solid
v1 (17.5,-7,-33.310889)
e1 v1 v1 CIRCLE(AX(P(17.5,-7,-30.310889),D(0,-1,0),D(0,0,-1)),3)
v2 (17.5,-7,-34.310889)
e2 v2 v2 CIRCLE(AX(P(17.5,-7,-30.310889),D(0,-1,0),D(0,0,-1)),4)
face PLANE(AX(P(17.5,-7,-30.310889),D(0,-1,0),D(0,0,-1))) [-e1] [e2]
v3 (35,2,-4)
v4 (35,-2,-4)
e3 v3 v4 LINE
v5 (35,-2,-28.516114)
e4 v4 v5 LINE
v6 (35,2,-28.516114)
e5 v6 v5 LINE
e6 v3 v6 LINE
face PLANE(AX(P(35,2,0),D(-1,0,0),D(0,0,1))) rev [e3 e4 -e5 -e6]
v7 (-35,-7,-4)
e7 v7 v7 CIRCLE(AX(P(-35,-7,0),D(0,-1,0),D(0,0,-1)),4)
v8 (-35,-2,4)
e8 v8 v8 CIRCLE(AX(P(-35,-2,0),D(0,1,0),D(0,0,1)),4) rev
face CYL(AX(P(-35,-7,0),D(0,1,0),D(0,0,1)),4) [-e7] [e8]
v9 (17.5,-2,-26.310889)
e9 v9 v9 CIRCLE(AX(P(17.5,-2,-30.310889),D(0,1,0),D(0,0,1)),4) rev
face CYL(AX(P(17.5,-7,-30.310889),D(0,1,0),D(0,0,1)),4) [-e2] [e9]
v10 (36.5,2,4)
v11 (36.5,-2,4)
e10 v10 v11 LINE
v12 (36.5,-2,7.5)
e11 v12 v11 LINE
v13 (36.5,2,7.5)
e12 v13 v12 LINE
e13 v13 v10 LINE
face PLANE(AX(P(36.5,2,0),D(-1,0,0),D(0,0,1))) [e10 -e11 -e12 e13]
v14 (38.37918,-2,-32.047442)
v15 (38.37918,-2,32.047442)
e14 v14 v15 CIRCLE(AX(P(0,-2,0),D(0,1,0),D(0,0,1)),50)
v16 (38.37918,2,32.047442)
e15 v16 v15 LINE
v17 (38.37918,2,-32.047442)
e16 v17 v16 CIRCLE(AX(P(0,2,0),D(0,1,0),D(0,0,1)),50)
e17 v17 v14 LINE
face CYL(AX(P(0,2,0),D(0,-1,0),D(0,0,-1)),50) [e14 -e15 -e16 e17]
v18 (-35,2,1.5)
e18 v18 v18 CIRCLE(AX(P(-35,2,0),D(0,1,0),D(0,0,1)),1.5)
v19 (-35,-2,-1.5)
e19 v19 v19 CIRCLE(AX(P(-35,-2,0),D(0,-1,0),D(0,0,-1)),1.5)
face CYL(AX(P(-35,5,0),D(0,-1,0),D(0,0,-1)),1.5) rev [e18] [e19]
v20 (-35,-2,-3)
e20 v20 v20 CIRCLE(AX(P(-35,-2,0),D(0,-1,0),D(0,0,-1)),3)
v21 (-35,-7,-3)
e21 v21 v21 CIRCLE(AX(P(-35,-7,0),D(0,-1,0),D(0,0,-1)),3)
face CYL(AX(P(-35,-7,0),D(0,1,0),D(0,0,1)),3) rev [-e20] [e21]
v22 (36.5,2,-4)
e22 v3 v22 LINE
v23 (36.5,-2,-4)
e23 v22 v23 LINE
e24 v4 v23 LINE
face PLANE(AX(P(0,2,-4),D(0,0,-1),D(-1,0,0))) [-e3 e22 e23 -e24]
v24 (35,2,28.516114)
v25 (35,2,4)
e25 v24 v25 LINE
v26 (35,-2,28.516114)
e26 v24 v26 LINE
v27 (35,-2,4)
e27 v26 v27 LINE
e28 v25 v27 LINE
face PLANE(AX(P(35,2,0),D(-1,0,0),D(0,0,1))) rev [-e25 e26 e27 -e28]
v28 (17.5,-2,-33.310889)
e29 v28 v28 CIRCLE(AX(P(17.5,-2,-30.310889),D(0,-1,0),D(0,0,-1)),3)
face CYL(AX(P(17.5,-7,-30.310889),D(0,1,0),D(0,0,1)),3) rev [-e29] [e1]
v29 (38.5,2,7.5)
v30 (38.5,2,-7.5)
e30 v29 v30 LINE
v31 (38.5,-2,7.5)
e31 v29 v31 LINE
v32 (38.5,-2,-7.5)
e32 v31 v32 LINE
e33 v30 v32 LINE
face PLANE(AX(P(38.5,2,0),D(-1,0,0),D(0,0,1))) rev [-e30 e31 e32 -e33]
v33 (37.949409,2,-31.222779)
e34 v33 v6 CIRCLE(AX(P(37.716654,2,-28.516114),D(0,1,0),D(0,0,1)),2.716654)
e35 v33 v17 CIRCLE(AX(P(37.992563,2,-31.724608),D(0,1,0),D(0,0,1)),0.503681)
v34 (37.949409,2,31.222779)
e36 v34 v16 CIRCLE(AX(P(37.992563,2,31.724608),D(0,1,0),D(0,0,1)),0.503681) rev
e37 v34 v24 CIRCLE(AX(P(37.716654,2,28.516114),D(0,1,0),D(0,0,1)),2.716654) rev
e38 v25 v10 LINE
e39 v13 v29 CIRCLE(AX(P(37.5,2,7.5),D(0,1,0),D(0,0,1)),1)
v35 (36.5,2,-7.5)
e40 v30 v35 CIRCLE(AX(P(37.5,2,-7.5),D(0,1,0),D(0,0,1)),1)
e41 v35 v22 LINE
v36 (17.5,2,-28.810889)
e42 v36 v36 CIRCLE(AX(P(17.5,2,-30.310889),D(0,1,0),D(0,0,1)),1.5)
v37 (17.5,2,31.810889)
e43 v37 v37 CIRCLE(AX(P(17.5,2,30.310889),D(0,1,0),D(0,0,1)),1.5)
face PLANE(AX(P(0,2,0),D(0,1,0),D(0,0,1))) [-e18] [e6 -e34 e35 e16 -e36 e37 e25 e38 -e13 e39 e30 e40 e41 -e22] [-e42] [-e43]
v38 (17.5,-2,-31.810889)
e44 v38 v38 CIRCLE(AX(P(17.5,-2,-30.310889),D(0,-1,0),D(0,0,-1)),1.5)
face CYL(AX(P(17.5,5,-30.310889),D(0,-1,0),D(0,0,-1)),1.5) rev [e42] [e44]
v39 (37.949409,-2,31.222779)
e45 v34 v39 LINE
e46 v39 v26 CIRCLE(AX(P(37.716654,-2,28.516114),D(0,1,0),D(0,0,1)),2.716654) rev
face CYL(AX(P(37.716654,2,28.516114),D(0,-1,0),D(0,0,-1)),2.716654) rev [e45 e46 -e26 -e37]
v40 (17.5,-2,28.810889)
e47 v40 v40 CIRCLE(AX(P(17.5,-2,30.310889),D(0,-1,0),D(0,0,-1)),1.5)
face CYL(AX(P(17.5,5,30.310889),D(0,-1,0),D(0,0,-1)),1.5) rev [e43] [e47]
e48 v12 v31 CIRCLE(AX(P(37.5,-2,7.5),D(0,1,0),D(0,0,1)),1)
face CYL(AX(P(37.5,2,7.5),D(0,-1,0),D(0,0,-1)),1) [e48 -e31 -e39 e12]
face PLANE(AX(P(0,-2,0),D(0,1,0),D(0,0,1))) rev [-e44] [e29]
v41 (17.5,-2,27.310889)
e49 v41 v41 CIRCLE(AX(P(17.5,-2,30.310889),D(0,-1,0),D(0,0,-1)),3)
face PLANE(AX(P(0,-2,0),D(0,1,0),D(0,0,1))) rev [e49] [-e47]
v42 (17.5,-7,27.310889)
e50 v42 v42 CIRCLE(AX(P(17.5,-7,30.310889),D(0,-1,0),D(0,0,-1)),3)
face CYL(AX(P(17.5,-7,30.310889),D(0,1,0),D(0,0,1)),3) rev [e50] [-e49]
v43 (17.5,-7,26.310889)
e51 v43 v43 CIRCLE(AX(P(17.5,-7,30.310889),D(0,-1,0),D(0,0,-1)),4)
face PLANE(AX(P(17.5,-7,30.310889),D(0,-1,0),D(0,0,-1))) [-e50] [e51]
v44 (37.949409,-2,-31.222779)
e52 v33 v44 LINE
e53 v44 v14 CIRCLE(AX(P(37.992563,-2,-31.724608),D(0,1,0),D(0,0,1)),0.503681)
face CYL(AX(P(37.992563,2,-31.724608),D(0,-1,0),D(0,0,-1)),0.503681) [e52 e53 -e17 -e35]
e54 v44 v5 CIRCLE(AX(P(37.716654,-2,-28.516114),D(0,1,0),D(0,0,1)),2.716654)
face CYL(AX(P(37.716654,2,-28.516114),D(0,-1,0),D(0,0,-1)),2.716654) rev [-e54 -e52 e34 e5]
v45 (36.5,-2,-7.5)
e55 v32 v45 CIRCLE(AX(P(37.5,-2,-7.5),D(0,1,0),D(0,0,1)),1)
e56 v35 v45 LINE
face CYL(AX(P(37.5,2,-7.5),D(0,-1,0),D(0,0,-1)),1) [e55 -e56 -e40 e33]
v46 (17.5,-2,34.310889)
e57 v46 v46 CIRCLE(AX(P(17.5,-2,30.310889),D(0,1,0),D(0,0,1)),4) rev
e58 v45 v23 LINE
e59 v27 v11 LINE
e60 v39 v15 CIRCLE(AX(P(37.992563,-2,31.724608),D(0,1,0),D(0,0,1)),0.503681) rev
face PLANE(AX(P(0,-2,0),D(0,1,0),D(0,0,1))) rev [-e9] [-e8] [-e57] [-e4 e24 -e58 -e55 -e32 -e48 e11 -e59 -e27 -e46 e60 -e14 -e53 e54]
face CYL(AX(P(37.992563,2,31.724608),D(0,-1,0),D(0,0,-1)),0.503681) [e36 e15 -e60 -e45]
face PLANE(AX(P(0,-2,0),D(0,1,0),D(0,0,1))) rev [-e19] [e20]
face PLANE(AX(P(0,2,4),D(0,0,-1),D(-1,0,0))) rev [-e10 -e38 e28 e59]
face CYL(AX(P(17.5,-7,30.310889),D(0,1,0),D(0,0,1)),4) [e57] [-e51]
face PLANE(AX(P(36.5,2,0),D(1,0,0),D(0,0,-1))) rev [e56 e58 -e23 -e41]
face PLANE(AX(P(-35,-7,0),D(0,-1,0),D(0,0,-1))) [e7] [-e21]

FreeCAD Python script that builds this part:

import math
import FreeCAD as App
import Part
import Sketcher

V = App.Vector
Q = App.Units.Quantity

doc = App.newDocument("Part")
body = doc.addObject("PartDesign::Body", "Body")

sketch1 = body.newObject("Sketcher::SketchObject", "Sketch")
sketch1.AttachmentSupport = (doc.getObject("XZ_Plane"), [""])
sketch1.MapMode = "FlatFace"
sketch1.addGeometry(Part.LineSegment(V(35, 28.516114, 0), V(35, 4, 0)), False)
sketch1.addGeometry(Part.LineSegment(V(35, 4, 0), V(36.5, 4, 0)), False)
sketch1.addGeometry(Part.LineSegment(V(36.5, 4, 0), V(36.5, 7.5, 0)), False)
sketch1.addGeometry(Part.ArcOfCircle(Part.Circle(V(37.5, 7.5, 0), V(0, 0, 1), 1), math.radians(0), math.radians(180)), False)
sketch1.addGeometry(Part.LineSegment(V(38.5, 7.5, 0), V(38.5, -7.5, 0)), False)
sketch1.addGeometry(Part.ArcOfCircle(Part.Circle(V(37.5, -7.5, 0), V(0, 0, 1), 1), math.radians(180), math.radians(360)), False)
sketch1.addGeometry(Part.LineSegment(V(36.5, -7.5, 0), V(36.5, -4, 0)), False)
sketch1.addGeometry(Part.LineSegment(V(36.5, -4, 0), V(35, -4, 0)), False)
sketch1.addGeometry(Part.LineSegment(V(35, -4, 0), V(35, -28.516114, 0)), False)
sketch1.addGeometry(Part.ArcOfCircle(Part.Circle(V(37.716654, -28.516114, 0), V(0, 0, 1), 2.716654), math.radians(180), math.radians(274.914955)), False)
sketch1.addGeometry(Part.ArcOfCircle(Part.Circle(V(37.992563, -31.724608, 0), V(0, 0, 1), 0.503681), math.radians(-39.862608), math.radians(94.914955)), False)
sketch1.addGeometry(Part.ArcOfCircle(Part.Circle(V(0, 0, 0), V(0, 0, 1), 50), math.radians(39.862608), math.radians(320.137392)), False)
sketch1.addGeometry(Part.ArcOfCircle(Part.Circle(V(37.992563, 31.724608, 0), V(0, 0, 1), 0.503681), math.radians(-94.914955), math.radians(39.862608)), False)
sketch1.addGeometry(Part.ArcOfCircle(Part.Circle(V(37.716654, 28.516114, 0), V(0, 0, 1), 2.716654), math.radians(85.085045), math.radians(180)), False)
sketch1.addConstraint(Sketcher.Constraint("Coincident", 0, 2, 1, 1))
sketch1.addConstraint(Sketcher.Constraint("Coincident", 1, 2, 2, 1))
sketch1.addConstraint(Sketcher.Constraint("Tangent", 2, 2, 3, 2))
sketch1.addConstraint(Sketcher.Constraint("Tangent", 3, 1, 4, 1))
sketch1.addConstraint(Sketcher.Constraint("Tangent", 4, 2, 5, 2))
sketch1.addConstraint(Sketcher.Constraint("Tangent", 5, 1, 6, 1))
sketch1.addConstraint(Sketcher.Constraint("Coincident", 6, 2, 7, 1))
sketch1.addConstraint(Sketcher.Constraint("Coincident", 7, 2, 8, 1))
sketch1.addConstraint(Sketcher.Constraint("Tangent", 8, 2, 9, 1))
sketch1.addConstraint(Sketcher.Constraint("Tangent", 9, 2, 10, 2))
sketch1.addConstraint(Sketcher.Constraint("Tangent", 10, 1, 11, 2))
sketch1.addConstraint(Sketcher.Constraint("Tangent", 11, 1, 12, 2))
sketch1.addConstraint(Sketcher.Constraint("Tangent", 12, 1, 13, 1))
sketch1.addConstraint(Sketcher.Constraint("Tangent", 13, 2, 0, 1))
sketch1.addConstraint(Sketcher.Constraint("Vertical", 0))
sketch1.addConstraint(Sketcher.Constraint("Horizontal", 1))
sketch1.addConstraint(Sketcher.Constraint("Vertical", 2))
sketch1.addConstraint(Sketcher.Constraint("Vertical", 4))
sketch1.addConstraint(Sketcher.Constraint("Vertical", 6))
sketch1.addConstraint(Sketcher.Constraint("Horizontal", 7))
sketch1.addConstraint(Sketcher.Constraint("Vertical", 8))
sketch1.addConstraint(Sketcher.Constraint("Coincident", 11, 3, -1, 1))
sketch1.addConstraint(Sketcher.Constraint("Equal", 3, 5))
sketch1.addConstraint(Sketcher.Constraint("Equal", 10, 12))
sketch1.addConstraint(Sketcher.Constraint("Equal", 9, 13))
sketch1.addConstraint(Sketcher.Constraint("Symmetric", 9, 3, 13, 3, -1))
sketch1.addConstraint(Sketcher.Constraint("Equal", 2, 6))
sketch1.addConstraint(Sketcher.Constraint("Equal", 0, 8))
sketch1.addConstraint(Sketcher.Constraint("Radius", 3, Q("1 mm")))
sketch1.addConstraint(Sketcher.Constraint("Radius", 11, Q("50 mm")))
sketch1.addConstraint(Sketcher.Constraint("DistanceY", 4, 2, 4, 1, Q("15 mm")))
sketch1.addConstraint(Sketcher.Constraint("DistanceX", 1, 1, 1, 2, Q("1.5 mm")))
sketch1.addConstraint(Sketcher.Constraint("DistanceY", 2, 1, 2, 2, Q("3.5 mm")))
sketch1.addConstraint(Sketcher.Constraint("DistanceX", -1, 1, 0, 2, Q("35 mm")))
sketch1.addConstraint(Sketcher.Constraint("Radius", 10, Q("0.503681 mm")))
sketch1.addConstraint(Sketcher.Constraint("Radius", 9, Q("2.716654 mm")))
sketch1.addConstraint(Sketcher.Constraint("DistanceY", 0, 2, 0, 1, Q("24.516114 mm")))
pad1 = body.newObject("PartDesign::Pad", "Pad")
pad1.Profile = sketch1
pad1.Length = 4
pad1.Midplane = True

sketch2 = body.newObject("Sketcher::SketchObject", "Sketch001")
sketch2.AttachmentSupport = (doc.getObject("XZ_Plane"), [""])
sketch2.MapMode = "FlatFace"
sketch2.AttachmentOffset = App.Placement(V(0, 0, 2), App.Rotation())
sketch2.addGeometry(Part.Circle(V(17.5, 30.310889, 0), V(0, 0, 1), 1.5), False)
sketch2.addGeometry(Part.Circle(V(-35, 0, 0), V(0, 0, 1), 1.5), False)
sketch2.addGeometry(Part.Circle(V(17.5, -30.310889, 0), V(0, 0, 1), 1.5), False)
sketch2.addConstraint(Sketcher.Constraint("Equal", 0, 1))
sketch2.addConstraint(Sketcher.Constraint("Equal", 1, 2))
sketch2.addConstraint(Sketcher.Constraint("Symmetric", 0, 3, 2, 3, -1))
sketch2.addConstraint(Sketcher.Constraint("PointOnObject", 1, 3, -1))
sketch2.addConstraint(Sketcher.Constraint("Diameter", 0, Q("3 mm")))
sketch2.addConstraint(Sketcher.Constraint("DistanceX", 1, 3, -1, 1, Q("35 mm")))
sketch2.addConstraint(Sketcher.Constraint("DistanceX", -1, 1, 0, 3, Q("17.5 mm")))
sketch2.addConstraint(Sketcher.Constraint("DistanceY", -1, 1, 0, 3, Q("30.310889 mm")))
pocket1 = body.newObject("PartDesign::Pocket", "Pocket")
pocket1.Profile = sketch2
pocket1.Length = 7

sketch3 = body.newObject("Sketcher::SketchObject", "Sketch002")
sketch3.AttachmentSupport = (doc.getObject("XZ_Plane"), [""])
sketch3.MapMode = "FlatFace"
sketch3.AttachmentOffset = App.Placement(V(0, 0, 2), App.Rotation())
sketch3.addGeometry(Part.Circle(V(-35, 0, 0), V(0, 0, 1), 4), False)
sketch3.addGeometry(Part.Circle(V(-35, 0, 0), V(0, 0, 1), 3), False)
sketch3.addGeometry(Part.Circle(V(17.5, 30.310889, 0), V(0, 0, 1), 4), False)
sketch3.addGeometry(Part.Circle(V(17.5, 30.310889, 0), V(0, 0, 1), 3), False)
sketch3.addGeometry(Part.Circle(V(17.5, -30.310889, 0), V(0, 0, 1), 4), False)
sketch3.addGeometry(Part.Circle(V(17.5, -30.310889, 0), V(0, 0, 1), 3), False)
sketch3.addConstraint(Sketcher.Constraint("Coincident", 1, 3, 0, 3))
sketch3.addConstraint(Sketcher.Constraint("Coincident", 3, 3, 2, 3))
sketch3.addConstraint(Sketcher.Constraint("Coincident", 5, 3, 4, 3))
sketch3.addConstraint(Sketcher.Constraint("Equal", 0, 2))
sketch3.addConstraint(Sketcher.Constraint("Equal", 1, 3))
sketch3.addConstraint(Sketcher.Constraint("Equal", 2, 4))
sketch3.addConstraint(Sketcher.Constraint("Equal", 3, 5))
sketch3.addConstraint(Sketcher.Constraint("Symmetric", 2, 3, 4, 3, -1))
sketch3.addConstraint(Sketcher.Constraint("PointOnObject", 0, 3, -1))
sketch3.addConstraint(Sketcher.Constraint("Diameter", 0, Q("8 mm")))
sketch3.addConstraint(Sketcher.Constraint("Diameter", 1, Q("6 mm")))
sketch3.addConstraint(Sketcher.Constraint("DistanceX", 0, 3, -1, 1, Q("35 mm")))
sketch3.addConstraint(Sketcher.Constraint("DistanceX", -1, 1, 2, 3, Q("17.5 mm")))
sketch3.addConstraint(Sketcher.Constraint("DistanceY", -1, 1, 2, 3, Q("30.310889 mm")))
pad2 = body.newObject("PartDesign::Pad", "Pad001")
pad2.Profile = sketch3
pad2.Length = 5

doc.recompute()
